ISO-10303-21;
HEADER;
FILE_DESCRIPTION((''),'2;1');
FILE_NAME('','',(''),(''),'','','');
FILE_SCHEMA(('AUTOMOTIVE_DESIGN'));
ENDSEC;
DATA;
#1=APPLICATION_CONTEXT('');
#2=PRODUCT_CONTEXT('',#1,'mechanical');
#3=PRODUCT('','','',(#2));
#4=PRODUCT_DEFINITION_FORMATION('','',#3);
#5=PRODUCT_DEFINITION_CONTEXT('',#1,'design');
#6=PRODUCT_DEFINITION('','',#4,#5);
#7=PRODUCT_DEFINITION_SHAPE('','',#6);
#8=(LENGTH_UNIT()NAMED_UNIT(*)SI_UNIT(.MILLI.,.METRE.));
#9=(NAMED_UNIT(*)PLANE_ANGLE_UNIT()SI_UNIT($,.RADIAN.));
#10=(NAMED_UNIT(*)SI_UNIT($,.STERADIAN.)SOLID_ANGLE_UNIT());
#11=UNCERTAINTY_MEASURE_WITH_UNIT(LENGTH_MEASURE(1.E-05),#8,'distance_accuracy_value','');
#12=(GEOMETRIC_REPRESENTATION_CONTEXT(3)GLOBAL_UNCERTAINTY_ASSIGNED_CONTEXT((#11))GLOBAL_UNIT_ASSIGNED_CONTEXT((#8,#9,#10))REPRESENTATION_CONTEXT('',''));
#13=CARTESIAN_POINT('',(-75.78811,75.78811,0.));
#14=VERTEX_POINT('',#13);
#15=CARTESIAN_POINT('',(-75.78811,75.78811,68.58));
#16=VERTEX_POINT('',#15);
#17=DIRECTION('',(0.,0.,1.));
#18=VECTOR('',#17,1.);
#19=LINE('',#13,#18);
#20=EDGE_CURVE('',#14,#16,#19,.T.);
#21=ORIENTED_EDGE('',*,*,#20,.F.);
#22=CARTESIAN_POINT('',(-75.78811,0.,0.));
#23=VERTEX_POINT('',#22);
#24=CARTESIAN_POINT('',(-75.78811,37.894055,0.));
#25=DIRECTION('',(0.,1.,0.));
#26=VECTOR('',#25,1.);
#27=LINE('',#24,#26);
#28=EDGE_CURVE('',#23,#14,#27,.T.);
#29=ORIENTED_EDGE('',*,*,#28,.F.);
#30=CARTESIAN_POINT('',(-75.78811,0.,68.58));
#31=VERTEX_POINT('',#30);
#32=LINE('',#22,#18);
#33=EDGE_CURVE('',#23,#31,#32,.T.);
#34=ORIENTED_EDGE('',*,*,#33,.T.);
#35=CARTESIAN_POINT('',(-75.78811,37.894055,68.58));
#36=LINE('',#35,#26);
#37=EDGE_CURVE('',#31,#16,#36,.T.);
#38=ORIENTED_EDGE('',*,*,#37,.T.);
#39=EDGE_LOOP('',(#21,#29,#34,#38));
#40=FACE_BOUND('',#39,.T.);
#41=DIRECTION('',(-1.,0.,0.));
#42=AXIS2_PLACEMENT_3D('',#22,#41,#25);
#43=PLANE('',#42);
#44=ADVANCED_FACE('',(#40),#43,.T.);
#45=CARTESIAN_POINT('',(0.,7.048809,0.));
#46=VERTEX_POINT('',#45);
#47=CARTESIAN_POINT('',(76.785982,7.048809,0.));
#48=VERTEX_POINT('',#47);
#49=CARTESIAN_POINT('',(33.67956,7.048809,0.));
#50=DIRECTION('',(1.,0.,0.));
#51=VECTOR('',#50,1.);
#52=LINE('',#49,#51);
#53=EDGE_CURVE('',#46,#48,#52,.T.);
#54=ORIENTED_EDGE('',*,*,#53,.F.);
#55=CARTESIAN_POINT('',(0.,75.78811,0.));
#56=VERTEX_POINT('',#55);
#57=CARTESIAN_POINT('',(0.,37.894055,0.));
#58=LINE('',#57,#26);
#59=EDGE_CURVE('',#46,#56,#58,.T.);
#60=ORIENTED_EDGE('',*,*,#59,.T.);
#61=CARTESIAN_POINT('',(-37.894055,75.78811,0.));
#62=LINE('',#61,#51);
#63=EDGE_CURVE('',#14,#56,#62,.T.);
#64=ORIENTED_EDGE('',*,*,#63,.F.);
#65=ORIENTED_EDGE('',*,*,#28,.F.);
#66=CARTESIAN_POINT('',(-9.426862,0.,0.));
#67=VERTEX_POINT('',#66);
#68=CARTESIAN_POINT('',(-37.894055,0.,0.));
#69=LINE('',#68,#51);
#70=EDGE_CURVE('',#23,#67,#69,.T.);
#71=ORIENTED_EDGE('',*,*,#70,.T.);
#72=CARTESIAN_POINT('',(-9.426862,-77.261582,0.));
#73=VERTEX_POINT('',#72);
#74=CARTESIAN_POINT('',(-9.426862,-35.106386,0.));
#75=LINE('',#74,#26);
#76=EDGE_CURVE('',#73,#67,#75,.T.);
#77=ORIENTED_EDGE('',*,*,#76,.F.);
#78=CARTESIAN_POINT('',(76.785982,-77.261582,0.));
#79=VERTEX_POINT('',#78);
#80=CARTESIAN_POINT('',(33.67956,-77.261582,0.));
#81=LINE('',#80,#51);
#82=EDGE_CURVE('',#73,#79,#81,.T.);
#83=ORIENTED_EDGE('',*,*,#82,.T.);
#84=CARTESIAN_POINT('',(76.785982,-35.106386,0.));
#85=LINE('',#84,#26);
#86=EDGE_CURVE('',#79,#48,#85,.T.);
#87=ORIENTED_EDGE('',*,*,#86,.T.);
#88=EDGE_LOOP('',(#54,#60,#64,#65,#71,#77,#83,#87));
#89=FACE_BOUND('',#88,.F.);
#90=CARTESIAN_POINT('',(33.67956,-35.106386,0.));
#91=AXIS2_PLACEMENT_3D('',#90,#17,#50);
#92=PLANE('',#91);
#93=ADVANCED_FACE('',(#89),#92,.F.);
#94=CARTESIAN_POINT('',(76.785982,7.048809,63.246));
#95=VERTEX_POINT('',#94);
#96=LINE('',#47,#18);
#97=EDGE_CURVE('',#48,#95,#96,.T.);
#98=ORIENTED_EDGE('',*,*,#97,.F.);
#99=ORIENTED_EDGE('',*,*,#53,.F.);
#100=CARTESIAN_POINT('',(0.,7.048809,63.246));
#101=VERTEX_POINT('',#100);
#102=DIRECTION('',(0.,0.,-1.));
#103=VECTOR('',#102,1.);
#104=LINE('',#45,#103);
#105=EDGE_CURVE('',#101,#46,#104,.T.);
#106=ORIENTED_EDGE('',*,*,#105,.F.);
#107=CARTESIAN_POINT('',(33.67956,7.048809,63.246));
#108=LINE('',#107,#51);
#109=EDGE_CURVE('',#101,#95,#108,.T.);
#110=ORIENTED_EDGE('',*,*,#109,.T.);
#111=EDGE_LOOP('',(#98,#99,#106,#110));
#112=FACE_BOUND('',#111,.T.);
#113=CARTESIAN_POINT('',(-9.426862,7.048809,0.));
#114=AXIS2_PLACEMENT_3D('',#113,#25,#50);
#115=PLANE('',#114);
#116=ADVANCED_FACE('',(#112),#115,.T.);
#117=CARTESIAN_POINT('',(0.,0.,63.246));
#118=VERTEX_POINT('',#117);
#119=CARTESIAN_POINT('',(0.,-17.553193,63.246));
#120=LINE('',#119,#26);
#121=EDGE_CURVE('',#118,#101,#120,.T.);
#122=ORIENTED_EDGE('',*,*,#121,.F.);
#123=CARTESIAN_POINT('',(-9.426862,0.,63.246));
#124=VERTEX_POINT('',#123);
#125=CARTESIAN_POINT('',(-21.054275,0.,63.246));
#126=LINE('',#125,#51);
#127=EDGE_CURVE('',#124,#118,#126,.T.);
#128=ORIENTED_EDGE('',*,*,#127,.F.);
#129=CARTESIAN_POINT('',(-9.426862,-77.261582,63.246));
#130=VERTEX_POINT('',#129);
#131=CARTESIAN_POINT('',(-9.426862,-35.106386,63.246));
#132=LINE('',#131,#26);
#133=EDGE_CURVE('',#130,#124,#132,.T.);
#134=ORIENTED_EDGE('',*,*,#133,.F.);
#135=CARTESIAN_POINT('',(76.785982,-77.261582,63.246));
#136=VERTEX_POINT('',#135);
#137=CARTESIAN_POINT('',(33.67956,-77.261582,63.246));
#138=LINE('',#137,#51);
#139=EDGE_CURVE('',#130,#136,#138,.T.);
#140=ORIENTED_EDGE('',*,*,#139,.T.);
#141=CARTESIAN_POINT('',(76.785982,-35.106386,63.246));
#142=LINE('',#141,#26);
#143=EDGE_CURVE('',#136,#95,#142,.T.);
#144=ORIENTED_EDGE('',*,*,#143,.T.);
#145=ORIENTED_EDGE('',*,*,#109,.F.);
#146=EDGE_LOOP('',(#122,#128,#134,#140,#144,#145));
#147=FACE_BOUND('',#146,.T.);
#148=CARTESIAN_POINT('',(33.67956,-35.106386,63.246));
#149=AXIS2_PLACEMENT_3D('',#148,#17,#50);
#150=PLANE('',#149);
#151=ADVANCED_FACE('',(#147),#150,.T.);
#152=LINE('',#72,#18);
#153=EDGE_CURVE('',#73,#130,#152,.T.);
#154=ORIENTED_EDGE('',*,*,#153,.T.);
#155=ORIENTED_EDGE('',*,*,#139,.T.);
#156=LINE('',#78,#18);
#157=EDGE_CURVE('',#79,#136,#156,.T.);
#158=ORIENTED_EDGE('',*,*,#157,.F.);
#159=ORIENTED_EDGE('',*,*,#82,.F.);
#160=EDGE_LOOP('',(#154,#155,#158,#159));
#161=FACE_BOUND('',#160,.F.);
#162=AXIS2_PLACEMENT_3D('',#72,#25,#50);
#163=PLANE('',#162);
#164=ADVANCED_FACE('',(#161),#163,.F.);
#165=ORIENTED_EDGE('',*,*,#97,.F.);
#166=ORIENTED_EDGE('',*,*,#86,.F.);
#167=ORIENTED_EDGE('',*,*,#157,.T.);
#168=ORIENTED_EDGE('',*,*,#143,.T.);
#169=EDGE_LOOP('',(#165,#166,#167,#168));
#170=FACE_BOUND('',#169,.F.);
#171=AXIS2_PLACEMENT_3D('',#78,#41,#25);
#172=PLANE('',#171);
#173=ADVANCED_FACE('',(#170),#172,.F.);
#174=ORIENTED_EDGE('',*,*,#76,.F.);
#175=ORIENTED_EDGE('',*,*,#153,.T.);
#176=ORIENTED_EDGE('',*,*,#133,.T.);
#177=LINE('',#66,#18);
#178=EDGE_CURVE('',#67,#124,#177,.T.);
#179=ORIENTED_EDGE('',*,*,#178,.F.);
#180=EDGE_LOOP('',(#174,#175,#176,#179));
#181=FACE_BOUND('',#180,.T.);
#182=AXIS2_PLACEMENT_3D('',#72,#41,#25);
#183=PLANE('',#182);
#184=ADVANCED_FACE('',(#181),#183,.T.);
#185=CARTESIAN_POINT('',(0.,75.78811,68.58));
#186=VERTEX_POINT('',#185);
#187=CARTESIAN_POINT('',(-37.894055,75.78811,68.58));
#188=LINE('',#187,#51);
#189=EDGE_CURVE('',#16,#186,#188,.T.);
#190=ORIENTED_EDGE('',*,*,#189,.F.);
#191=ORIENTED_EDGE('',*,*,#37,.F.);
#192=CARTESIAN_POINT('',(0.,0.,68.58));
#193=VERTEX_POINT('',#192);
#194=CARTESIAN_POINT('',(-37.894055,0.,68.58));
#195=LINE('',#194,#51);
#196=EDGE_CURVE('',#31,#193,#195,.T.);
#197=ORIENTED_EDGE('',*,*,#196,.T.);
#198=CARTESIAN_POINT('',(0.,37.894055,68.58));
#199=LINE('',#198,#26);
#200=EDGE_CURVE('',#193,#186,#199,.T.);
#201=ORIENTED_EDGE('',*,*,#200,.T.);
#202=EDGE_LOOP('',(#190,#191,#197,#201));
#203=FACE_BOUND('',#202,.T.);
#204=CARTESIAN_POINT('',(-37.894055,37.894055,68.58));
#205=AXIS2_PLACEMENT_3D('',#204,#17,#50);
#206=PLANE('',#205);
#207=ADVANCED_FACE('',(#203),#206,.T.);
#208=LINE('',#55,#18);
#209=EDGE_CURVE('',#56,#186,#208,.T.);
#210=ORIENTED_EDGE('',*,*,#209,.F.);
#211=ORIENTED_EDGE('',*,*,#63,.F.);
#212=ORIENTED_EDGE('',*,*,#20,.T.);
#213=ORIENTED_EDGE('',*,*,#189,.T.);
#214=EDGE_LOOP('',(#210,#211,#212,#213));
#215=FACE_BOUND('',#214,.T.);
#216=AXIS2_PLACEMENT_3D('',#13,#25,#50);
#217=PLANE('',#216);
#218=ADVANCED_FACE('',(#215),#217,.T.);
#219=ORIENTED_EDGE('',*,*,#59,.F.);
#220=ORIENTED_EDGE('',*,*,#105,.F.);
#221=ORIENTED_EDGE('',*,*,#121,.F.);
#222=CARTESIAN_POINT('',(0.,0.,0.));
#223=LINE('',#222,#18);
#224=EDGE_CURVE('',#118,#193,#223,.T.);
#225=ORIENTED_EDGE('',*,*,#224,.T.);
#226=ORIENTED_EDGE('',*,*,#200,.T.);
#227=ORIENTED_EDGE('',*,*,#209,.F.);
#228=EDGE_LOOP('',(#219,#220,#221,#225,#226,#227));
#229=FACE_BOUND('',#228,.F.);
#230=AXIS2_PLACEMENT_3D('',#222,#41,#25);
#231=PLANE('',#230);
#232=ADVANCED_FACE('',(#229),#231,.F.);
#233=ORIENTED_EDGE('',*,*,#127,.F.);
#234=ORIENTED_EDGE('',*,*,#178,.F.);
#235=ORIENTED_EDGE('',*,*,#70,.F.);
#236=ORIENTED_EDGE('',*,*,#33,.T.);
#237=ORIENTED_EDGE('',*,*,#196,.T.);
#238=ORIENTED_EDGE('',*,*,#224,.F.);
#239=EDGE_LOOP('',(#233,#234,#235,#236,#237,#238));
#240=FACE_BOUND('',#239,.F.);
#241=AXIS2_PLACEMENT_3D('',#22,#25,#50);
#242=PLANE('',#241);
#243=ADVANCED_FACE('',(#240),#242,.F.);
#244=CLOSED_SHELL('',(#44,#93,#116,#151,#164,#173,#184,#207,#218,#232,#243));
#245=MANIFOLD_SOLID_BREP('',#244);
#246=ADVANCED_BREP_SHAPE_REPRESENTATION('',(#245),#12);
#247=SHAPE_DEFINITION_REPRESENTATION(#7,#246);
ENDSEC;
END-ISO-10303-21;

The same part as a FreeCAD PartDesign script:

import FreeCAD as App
import Part
import Sketcher
from FreeCAD import Vector
Q = App.Units.Quantity


def add_polygon(sketch, points):
    """Adds a closed chain of lines whose ends are joined by coincident constraints."""
    first, n = sketch.GeometryCount, len(points)
    for a, b in zip(points, points[1:] + points[:1]):
        sketch.addGeometry(Part.LineSegment(App.Vector(*a, 0), App.Vector(*b, 0)), False)
    for i in range(n):
        sketch.addConstraint(Sketcher.Constraint("Coincident", first + i, 2, first + (i + 1) % n, 1))

doc = App.newDocument("Part")
body = doc.addObject("PartDesign::Body", "Body")

sketch1 = doc.addObject("Sketcher::SketchObject", "Sketch")
body.addObject(sketch1)
sketch1.AttachmentSupport = (doc.XY_Plane, [""])
sketch1.MapMode = "FlatFace"
add_polygon(sketch1, [(-76, 76), (-76, 0), (0, 0), (0, 76)])
sketch1.addConstraint([
    Sketcher.Constraint("Vertical", 0),
    Sketcher.Constraint("Horizontal", 1),
    Sketcher.Constraint("Vertical", 2),
    Sketcher.Constraint("Horizontal", 3),
    Sketcher.Constraint("Coincident", 1, 2, -1, 1),
    Sketcher.Constraint("Equal", 3, 0),
    Sketcher.Constraint("DistanceX", 1, 1, 1, 2, Q("75.78811 mm")),
])
pad1 = doc.addObject("PartDesign::Pad", "Pad")
body.addObject(pad1)
pad1.Profile = sketch1
pad1.Length = Q("2.7 in")

sketch2 = doc.addObject("Sketcher::SketchObject", "Sketch001")
body.addObject(sketch2)
sketch2.AttachmentSupport = (doc.XY_Plane, [""])
sketch2.MapMode = "FlatFace"
add_polygon(sketch2, [(-9, 7), (-9, -77), (77, -77), (77, 7)])
sketch2.addConstraint([
    Sketcher.Constraint("Vertical", 0),
    Sketcher.Constraint("Horizontal", 1),
    Sketcher.Constraint("Vertical", 2),
    Sketcher.Constraint("Horizontal", 3),
    Sketcher.Constraint("DistanceY", 0, 2, 0, 1, Q("84.310391 mm")),
    Sketcher.Constraint("DistanceX", 1, 1, 1, 2, Q("86.212844 mm")),
    Sketcher.Constraint("DistanceY", 0, 2, -1, 1, Q("77.261582 mm")),
    Sketcher.Constraint("DistanceX", 0, 2, -1, 1, Q("9.426862 mm")),
])
pad2 = doc.addObject("PartDesign::Pad", "Pad001")
body.addObject(pad2)
pad2.Profile = sketch2
pad2.Length = Q("2.49 in")

doc.recompute()
